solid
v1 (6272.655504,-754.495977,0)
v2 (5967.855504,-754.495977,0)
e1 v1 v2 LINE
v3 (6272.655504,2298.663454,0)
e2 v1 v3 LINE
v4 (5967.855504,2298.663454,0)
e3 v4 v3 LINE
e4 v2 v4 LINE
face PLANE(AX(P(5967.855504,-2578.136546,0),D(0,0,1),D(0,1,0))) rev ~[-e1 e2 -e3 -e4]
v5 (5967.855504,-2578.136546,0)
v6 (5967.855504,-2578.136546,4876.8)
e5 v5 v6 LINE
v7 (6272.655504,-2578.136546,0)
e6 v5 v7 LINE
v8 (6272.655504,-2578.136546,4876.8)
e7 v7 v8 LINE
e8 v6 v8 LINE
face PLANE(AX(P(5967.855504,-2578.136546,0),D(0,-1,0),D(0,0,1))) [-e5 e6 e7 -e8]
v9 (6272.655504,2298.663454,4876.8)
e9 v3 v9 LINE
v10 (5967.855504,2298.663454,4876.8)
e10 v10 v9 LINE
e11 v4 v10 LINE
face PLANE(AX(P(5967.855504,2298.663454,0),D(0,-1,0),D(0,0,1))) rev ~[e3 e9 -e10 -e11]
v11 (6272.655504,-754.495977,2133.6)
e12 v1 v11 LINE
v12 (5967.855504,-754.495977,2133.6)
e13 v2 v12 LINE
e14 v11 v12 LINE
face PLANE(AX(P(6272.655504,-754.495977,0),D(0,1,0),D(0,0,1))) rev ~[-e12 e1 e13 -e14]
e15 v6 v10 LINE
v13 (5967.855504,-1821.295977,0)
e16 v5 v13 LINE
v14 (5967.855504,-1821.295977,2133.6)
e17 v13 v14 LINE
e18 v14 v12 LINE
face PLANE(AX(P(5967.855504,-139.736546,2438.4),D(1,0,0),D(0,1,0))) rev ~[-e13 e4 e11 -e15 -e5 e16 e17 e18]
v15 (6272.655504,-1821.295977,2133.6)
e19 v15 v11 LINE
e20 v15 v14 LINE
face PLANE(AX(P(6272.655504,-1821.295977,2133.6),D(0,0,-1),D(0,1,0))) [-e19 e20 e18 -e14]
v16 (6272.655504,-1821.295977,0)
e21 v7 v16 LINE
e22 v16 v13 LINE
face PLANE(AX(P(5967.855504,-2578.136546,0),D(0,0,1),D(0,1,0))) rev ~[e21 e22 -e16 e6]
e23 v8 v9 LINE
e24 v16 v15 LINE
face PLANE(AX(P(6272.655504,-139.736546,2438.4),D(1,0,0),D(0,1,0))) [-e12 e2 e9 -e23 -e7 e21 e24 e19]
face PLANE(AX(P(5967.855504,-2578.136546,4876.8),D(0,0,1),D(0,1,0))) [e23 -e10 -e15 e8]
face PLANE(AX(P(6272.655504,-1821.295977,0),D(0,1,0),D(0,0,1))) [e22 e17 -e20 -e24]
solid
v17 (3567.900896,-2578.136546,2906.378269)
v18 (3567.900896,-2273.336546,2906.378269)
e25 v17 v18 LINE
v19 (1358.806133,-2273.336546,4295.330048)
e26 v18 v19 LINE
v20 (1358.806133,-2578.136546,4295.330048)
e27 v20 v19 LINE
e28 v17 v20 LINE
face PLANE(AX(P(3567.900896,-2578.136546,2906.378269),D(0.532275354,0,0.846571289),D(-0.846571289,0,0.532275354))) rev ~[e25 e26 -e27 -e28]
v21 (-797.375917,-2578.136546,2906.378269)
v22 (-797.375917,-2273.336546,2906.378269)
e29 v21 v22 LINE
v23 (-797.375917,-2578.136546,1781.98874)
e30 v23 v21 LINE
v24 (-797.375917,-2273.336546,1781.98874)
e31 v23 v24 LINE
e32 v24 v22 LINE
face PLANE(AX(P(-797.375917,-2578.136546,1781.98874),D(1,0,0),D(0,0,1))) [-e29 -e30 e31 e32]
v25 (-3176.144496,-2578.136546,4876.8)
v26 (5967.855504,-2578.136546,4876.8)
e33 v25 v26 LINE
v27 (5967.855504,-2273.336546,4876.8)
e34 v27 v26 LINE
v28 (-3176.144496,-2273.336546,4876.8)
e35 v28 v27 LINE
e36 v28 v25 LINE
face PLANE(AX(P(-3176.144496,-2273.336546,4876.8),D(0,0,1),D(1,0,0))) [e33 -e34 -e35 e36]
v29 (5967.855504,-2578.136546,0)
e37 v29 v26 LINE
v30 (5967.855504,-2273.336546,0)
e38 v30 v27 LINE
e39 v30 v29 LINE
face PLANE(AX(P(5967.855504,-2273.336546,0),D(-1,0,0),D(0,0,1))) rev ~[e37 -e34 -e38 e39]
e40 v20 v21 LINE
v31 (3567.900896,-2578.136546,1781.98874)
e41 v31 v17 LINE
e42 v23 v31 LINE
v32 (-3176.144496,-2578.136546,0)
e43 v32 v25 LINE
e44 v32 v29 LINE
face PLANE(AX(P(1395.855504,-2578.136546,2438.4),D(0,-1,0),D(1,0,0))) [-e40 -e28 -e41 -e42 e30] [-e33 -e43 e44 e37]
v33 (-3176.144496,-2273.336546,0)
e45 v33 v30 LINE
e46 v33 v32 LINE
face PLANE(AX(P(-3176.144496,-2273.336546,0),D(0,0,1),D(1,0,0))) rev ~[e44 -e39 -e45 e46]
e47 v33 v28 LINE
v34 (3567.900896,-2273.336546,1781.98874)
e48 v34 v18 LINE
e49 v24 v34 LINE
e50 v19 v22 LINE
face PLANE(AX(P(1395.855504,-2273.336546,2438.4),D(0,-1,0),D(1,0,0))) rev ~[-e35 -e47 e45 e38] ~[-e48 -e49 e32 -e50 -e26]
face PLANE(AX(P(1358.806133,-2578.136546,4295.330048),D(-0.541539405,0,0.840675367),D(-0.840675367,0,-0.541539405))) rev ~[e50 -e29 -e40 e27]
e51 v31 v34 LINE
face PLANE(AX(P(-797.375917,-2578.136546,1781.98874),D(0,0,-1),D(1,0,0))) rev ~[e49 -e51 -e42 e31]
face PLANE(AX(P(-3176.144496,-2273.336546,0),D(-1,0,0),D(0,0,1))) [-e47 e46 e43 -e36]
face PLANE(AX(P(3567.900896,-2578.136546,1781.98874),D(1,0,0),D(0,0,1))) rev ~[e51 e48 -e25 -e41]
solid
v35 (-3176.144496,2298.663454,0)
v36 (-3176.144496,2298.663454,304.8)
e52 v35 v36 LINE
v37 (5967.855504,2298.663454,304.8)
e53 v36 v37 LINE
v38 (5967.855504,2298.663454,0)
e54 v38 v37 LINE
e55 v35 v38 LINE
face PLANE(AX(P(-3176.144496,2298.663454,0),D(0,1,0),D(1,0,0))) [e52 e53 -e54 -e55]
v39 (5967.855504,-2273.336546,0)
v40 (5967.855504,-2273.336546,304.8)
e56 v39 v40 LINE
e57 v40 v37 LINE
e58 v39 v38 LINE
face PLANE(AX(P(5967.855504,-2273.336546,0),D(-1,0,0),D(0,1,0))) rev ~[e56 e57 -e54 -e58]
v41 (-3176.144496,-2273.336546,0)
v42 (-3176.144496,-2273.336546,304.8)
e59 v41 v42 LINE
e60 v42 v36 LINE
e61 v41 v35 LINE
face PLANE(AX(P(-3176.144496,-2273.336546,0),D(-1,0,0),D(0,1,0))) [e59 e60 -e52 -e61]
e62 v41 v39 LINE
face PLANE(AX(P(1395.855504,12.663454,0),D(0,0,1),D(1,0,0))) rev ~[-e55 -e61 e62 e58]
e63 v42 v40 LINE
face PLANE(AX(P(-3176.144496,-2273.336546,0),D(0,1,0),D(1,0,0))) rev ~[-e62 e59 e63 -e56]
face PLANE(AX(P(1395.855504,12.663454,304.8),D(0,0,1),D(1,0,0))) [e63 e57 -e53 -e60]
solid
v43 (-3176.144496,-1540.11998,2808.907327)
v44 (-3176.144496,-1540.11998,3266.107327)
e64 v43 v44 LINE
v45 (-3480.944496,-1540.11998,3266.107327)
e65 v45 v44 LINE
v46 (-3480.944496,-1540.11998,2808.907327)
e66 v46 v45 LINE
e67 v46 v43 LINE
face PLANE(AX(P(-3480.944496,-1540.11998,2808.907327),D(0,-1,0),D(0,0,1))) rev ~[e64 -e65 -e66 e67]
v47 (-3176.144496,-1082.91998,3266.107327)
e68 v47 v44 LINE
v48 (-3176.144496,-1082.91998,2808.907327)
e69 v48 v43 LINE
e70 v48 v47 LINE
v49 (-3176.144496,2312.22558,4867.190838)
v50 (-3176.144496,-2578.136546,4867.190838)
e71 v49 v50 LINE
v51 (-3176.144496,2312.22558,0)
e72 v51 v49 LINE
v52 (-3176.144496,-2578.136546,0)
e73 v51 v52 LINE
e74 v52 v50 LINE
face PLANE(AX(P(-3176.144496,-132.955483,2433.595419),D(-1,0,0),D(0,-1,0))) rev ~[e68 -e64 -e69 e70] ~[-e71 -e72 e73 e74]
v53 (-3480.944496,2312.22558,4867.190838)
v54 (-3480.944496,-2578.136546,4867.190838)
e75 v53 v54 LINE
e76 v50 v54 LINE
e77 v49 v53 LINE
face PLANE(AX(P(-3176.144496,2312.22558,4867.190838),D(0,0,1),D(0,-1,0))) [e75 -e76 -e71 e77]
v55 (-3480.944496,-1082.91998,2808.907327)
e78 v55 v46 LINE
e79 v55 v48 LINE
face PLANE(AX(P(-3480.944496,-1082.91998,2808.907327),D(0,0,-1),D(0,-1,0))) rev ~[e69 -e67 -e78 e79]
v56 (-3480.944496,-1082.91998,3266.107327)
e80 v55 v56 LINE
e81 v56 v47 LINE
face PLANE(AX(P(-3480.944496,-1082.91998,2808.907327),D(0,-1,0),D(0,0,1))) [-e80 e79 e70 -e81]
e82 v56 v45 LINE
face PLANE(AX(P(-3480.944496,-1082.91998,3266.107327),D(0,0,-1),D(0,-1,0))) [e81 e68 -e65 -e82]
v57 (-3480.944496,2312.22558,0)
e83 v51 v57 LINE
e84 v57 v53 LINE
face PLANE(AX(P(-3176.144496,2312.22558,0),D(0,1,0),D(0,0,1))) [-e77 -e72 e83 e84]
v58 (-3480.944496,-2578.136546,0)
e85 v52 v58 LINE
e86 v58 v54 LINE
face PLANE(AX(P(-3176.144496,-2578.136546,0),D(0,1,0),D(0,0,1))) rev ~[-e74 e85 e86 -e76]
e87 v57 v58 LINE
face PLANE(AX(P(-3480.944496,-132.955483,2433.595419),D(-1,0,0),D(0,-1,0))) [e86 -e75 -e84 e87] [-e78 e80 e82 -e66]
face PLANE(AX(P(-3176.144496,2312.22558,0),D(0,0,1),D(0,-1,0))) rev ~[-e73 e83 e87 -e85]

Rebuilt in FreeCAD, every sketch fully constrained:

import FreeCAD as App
import Part
import Sketcher
from FreeCAD import Vector
Q = App.Units.Quantity


def add_polygon(sketch, points):
    """Adds a closed chain of lines whose ends are joined by coincident constraints."""
    first, n = sketch.GeometryCount, len(points)
    for a, b in zip(points, points[1:] + points[:1]):
        sketch.addGeometry(Part.LineSegment(App.Vector(*a, 0), App.Vector(*b, 0)), False)
    for i in range(n):
        sketch.addConstraint(Sketcher.Constraint("Coincident", first + i, 2, first + (i + 1) % n, 1))

doc = App.newDocument("Part")
params = doc.addObject("Spreadsheet::Sheet", "Params")
for row, (alias, value) in enumerate([
    ("sketch1_width", "360 in"),
    ("sketch1_height", "180 in"),
    ("pad1_length", "12 in"),
    ("sketch2_width", "360 in"),
    ("sketch2_height", "192 in"),
    ("pad2_length", "12 in"),
    ("pocket1_length", "12 in"),
    ("sketch4_width", "192 in"),
    ("pad3_length", "12 in"),
    ("sketch5_width", "42 in"),
    ("sketch5_height", "84 in"),
    ("pocket2_length", "12 in"),
    ("pad4_length", "12 in"),
    ("sketch7_width", "18 in"),
    ("pocket3_length", "24 in"),
], start=1):
    params.set(f"A{row}", alias)
    params.set(f"B{row}", "=" + value)
    params.setAlias(f"B{row}", alias)

body = doc.addObject("PartDesign::Body", "Body")

# Sketch on XY plane
sketch1 = body.newObject("Sketcher::SketchObject", "Sketch")
sketch1.AttachmentSupport = (doc.getObject("XY_Plane"), [""])
sketch1.MapMode = "FlatFace"
add_polygon(sketch1, [(-3176.144496, 2298.663454), (-3176.144496, -2273.336546), (5967.855504, -2273.336546), (5967.855504, 2298.663454)])  # lines 0-3
sketch1.addConstraint([
    Sketcher.Constraint("Vertical", 0),
    Sketcher.Constraint("Horizontal", 1),
    Sketcher.Constraint("Vertical", 2),
    Sketcher.Constraint("Horizontal", 3),
    Sketcher.Constraint("DistanceX", 1, 1, 1, 2, Q("360 in")),
    Sketcher.Constraint("DistanceY", 0, 2, 0, 1, Q("180 in")),
    Sketcher.Constraint("DistanceX", 0, 2, -1, 1, Q("3176.144496 mm")),
    Sketcher.Constraint("DistanceY", 0, 2, -1, 1, Q("2273.336546 mm")),
])
sketch1.setExpression("Constraints[8]", "Params.sketch1_width")
sketch1.setExpression("Constraints[9]", "Params.sketch1_height")
pad1 = body.newObject("PartDesign::Pad", "Pad")
pad1.Profile = sketch1
pad1.setExpression("Length", "Params.pad1_length")
body2 = doc.addObject("PartDesign::Body", "Body001")

# Sketch on XZ plane
sketch2 = body2.newObject("Sketcher::SketchObject", "Sketch001")
sketch2.AttachmentSupport = (doc.getObject("XZ_Plane001"), [""])
sketch2.MapMode = "FlatFace"
sketch2.AttachmentOffset = App.Placement(Vector(0, 0, 2273.336546), App.Rotation())
add_polygon(sketch2, [(-3176.144496, 4876.8), (-3176.144496, 0), (5967.855504, 0), (5967.855504, 4876.8)])  # lines 0-3
sketch2.addConstraint([
    Sketcher.Constraint("Vertical", 0),
    Sketcher.Constraint("Horizontal", 1),
    Sketcher.Constraint("Vertical", 2),
    Sketcher.Constraint("Horizontal", 3),
    Sketcher.Constraint("PointOnObject", 0, 2, -1),
    Sketcher.Constraint("DistanceX", 1, 1, 1, 2, Q("360 in")),
    Sketcher.Constraint("DistanceY", 0, 2, 0, 1, Q("192 in")),
    Sketcher.Constraint("DistanceX", 0, 2, -1, 1, Q("3176.144496 mm")),
])
sketch2.setExpression("Constraints[9]", "Params.sketch2_width")
sketch2.setExpression("Constraints[10]", "Params.sketch2_height")
pad2 = body2.newObject("PartDesign::Pad", "Pad001")
pad2.Profile = sketch2
pad2.setExpression("Length", "Params.pad2_length")

# Sketch on XZ plane
sketch3 = body2.newObject("Sketcher::SketchObject", "Sketch002")
sketch3.AttachmentSupport = (doc.getObject("XZ_Plane001"), [""])
sketch3.MapMode = "FlatFace"
sketch3.AttachmentOffset = App.Placement(Vector(0, 0, 2578.136546), App.Rotation())
add_polygon(sketch3, [(1358.806133, 4295.330048), (-797.375917, 2906.378269), (-797.375917, 1781.98874), (3567.900896, 1781.98874), (3567.900896, 2906.378269)])  # lines 0-4
sketch3.addConstraint([
    Sketcher.Constraint("Vertical", 1),
    Sketcher.Constraint("Horizontal", 2),
    Sketcher.Constraint("Vertical", 3),
    Sketcher.Constraint("Horizontal", 0, 2, 3, 2),
    Sketcher.Constraint("Distance", 4, Q("2609.461001 mm")),
    Sketcher.Constraint("DistanceY", 1, 2, 1, 1, Q("1124.389529 mm")),
    Sketcher.Constraint("DistanceX", 2, 1, 2, 2, Q("4365.276814 mm")),
    Sketcher.Constraint("DistanceY", -1, 1, 0, 2, Q("2906.378269 mm")),
    Sketcher.Constraint("DistanceX", 0, 2, 4, 2, Q("2156.182051 mm")),
    Sketcher.Constraint("DistanceX", 0, 2, -1, 1, Q("797.375917 mm")),
])
pocket1 = body2.newObject("PartDesign::Pocket", "Pocket")
pocket1.Profile = sketch3
pocket1.setExpression("Length", "Params.pocket1_length")
body3 = doc.addObject("PartDesign::Body", "Body002")

# Sketch on YZ plane
sketch4 = body3.newObject("Sketcher::SketchObject", "Sketch003")
sketch4.AttachmentSupport = (doc.getObject("YZ_Plane002"), [""])
sketch4.MapMode = "FlatFace"
sketch4.AttachmentOffset = App.Placement(Vector(0, 0, 5967.855504), App.Rotation())
add_polygon(sketch4, [(-2578.136546, 4876.8), (-2578.136546, 0), (2298.663454, 0), (2298.663454, 4876.8)])  # lines 0-3
sketch4.addConstraint([
    Sketcher.Constraint("Vertical", 0),
    Sketcher.Constraint("Horizontal", 1),
    Sketcher.Constraint("Vertical", 2),
    Sketcher.Constraint("Horizontal", 3),
    Sketcher.Constraint("PointOnObject", 0, 2, -1),
    Sketcher.Constraint("Equal", 3, 0),
    Sketcher.Constraint("DistanceX", 1, 1, 1, 2, Q("192 in")),
    Sketcher.Constraint("DistanceX", 0, 2, -1, 1, Q("2578.136546 mm")),
])
sketch4.setExpression("Constraints[10]", "Params.sketch4_width")
pad3 = body3.newObject("PartDesign::Pad", "Pad002")
pad3.Profile = sketch4
pad3.setExpression("Length", "Params.pad3_length")

# Sketch on YZ plane
sketch5 = body3.newObject("Sketcher::SketchObject", "Sketch004")
sketch5.AttachmentSupport = (doc.getObject("YZ_Plane002"), [""])
sketch5.MapMode = "FlatFace"
sketch5.AttachmentOffset = App.Placement(Vector(0, 0, 6272.655504), App.Rotation())
add_polygon(sketch5, [(-1821.295977, 2133.6), (-1821.295977, 0), (-754.495977, 0), (-754.495977, 2133.6)])  # lines 0-3
sketch5.addConstraint([
    Sketcher.Constraint("Vertical", 0),
    Sketcher.Constraint("Horizontal", 1),
    Sketcher.Constraint("Vertical", 2),
    Sketcher.Constraint("Horizontal", 3),
    Sketcher.Constraint("PointOnObject", 0, 2, -1),
    Sketcher.Constraint("DistanceX", 1, 1, 1, 2, Q("42 in")),
    Sketcher.Constraint("DistanceY", 0, 2, 0, 1, Q("84 in")),
    Sketcher.Constraint("DistanceX", 0, 2, -1, 1, Q("1821.295977 mm")),
])
sketch5.setExpression("Constraints[9]", "Params.sketch5_width")
sketch5.setExpression("Constraints[10]", "Params.sketch5_height")
pocket2 = body3.newObject("PartDesign::Pocket", "Pocket001")
pocket2.Profile = sketch5
pocket2.setExpression("Length", "Params.pocket2_length")
body4 = doc.addObject("PartDesign::Body", "Body003")

# Sketch on YZ plane
sketch6 = body4.newObject("Sketcher::SketchObject", "Sketch005")
sketch6.AttachmentSupport = (doc.getObject("YZ_Plane003"), [""])
sketch6.MapMode = "FlatFace"
sketch6.AttachmentOffset = App.Placement(Vector(0, 0, -3176.144496), App.Rotation())
add_polygon(sketch6, [(2312.22558, 4867.190838), (2312.22558, 0), (-2578.136546, 0), (-2578.136546, 4867.190838)])  # lines 0-3
sketch6.addConstraint([
    Sketcher.Constraint("Vertical", 0),
    Sketcher.Constraint("Horizontal", 1),
    Sketcher.Constraint("Vertical", 2),
    Sketcher.Constraint("Horizontal", 3),
    Sketcher.Constraint("PointOnObject", 0, 2, -1),
    Sketcher.Constraint("DistanceX", 1, 2, 1, 1, Q("4890.362126 mm")),
    Sketcher.Constraint("DistanceY", 0, 2, 0, 1, Q("4867.190838 mm")),
    Sketcher.Constraint("DistanceX", -1, 1, 0, 2, Q("2312.22558 mm")),
])
pad4 = body4.newObject("PartDesign::Pad", "Pad003")
pad4.Profile = sketch6
pad4.setExpression("Length", "Params.pad4_length")
pad4.Reversed = True

# Sketch on YZ plane
sketch7 = body4.newObject("Sketcher::SketchObject", "Sketch006")
sketch7.AttachmentSupport = (doc.getObject("YZ_Plane003"), [""])
sketch7.MapMode = "FlatFace"
sketch7.AttachmentOffset = App.Placement(Vector(0, 0, -3480.944496), App.Rotation())
add_polygon(sketch7, [(-1082.91998, 3266.107327), (-1082.91998, 2808.907327), (-1540.11998, 2808.907327), (-1540.11998, 3266.107327)])  # lines 0-3
sketch7.addConstraint([
    Sketcher.Constraint("Vertical", 0),
    Sketcher.Constraint("Horizontal", 1),
    Sketcher.Constraint("Vertical", 2),
    Sketcher.Constraint("Horizontal", 3),
    Sketcher.Constraint("Equal", 3, 0),
    Sketcher.Constraint("DistanceX", 1, 2, 1, 1, Q("18 in")),
    Sketcher.Constraint("DistanceX", 0, 2, -1, 1, Q("1082.91998 mm")),
    Sketcher.Constraint("DistanceY", -1, 1, 0, 2, Q("2808.907327 mm")),
])
sketch7.setExpression("Constraints[9]", "Params.sketch7_width")
pocket3 = body4.newObject("PartDesign::Pocket", "Pocket002")
pocket3.Profile = sketch7
pocket3.setExpression("Length", "Params.pocket3_length")
pocket3.Reversed = True

doc.recompute()
